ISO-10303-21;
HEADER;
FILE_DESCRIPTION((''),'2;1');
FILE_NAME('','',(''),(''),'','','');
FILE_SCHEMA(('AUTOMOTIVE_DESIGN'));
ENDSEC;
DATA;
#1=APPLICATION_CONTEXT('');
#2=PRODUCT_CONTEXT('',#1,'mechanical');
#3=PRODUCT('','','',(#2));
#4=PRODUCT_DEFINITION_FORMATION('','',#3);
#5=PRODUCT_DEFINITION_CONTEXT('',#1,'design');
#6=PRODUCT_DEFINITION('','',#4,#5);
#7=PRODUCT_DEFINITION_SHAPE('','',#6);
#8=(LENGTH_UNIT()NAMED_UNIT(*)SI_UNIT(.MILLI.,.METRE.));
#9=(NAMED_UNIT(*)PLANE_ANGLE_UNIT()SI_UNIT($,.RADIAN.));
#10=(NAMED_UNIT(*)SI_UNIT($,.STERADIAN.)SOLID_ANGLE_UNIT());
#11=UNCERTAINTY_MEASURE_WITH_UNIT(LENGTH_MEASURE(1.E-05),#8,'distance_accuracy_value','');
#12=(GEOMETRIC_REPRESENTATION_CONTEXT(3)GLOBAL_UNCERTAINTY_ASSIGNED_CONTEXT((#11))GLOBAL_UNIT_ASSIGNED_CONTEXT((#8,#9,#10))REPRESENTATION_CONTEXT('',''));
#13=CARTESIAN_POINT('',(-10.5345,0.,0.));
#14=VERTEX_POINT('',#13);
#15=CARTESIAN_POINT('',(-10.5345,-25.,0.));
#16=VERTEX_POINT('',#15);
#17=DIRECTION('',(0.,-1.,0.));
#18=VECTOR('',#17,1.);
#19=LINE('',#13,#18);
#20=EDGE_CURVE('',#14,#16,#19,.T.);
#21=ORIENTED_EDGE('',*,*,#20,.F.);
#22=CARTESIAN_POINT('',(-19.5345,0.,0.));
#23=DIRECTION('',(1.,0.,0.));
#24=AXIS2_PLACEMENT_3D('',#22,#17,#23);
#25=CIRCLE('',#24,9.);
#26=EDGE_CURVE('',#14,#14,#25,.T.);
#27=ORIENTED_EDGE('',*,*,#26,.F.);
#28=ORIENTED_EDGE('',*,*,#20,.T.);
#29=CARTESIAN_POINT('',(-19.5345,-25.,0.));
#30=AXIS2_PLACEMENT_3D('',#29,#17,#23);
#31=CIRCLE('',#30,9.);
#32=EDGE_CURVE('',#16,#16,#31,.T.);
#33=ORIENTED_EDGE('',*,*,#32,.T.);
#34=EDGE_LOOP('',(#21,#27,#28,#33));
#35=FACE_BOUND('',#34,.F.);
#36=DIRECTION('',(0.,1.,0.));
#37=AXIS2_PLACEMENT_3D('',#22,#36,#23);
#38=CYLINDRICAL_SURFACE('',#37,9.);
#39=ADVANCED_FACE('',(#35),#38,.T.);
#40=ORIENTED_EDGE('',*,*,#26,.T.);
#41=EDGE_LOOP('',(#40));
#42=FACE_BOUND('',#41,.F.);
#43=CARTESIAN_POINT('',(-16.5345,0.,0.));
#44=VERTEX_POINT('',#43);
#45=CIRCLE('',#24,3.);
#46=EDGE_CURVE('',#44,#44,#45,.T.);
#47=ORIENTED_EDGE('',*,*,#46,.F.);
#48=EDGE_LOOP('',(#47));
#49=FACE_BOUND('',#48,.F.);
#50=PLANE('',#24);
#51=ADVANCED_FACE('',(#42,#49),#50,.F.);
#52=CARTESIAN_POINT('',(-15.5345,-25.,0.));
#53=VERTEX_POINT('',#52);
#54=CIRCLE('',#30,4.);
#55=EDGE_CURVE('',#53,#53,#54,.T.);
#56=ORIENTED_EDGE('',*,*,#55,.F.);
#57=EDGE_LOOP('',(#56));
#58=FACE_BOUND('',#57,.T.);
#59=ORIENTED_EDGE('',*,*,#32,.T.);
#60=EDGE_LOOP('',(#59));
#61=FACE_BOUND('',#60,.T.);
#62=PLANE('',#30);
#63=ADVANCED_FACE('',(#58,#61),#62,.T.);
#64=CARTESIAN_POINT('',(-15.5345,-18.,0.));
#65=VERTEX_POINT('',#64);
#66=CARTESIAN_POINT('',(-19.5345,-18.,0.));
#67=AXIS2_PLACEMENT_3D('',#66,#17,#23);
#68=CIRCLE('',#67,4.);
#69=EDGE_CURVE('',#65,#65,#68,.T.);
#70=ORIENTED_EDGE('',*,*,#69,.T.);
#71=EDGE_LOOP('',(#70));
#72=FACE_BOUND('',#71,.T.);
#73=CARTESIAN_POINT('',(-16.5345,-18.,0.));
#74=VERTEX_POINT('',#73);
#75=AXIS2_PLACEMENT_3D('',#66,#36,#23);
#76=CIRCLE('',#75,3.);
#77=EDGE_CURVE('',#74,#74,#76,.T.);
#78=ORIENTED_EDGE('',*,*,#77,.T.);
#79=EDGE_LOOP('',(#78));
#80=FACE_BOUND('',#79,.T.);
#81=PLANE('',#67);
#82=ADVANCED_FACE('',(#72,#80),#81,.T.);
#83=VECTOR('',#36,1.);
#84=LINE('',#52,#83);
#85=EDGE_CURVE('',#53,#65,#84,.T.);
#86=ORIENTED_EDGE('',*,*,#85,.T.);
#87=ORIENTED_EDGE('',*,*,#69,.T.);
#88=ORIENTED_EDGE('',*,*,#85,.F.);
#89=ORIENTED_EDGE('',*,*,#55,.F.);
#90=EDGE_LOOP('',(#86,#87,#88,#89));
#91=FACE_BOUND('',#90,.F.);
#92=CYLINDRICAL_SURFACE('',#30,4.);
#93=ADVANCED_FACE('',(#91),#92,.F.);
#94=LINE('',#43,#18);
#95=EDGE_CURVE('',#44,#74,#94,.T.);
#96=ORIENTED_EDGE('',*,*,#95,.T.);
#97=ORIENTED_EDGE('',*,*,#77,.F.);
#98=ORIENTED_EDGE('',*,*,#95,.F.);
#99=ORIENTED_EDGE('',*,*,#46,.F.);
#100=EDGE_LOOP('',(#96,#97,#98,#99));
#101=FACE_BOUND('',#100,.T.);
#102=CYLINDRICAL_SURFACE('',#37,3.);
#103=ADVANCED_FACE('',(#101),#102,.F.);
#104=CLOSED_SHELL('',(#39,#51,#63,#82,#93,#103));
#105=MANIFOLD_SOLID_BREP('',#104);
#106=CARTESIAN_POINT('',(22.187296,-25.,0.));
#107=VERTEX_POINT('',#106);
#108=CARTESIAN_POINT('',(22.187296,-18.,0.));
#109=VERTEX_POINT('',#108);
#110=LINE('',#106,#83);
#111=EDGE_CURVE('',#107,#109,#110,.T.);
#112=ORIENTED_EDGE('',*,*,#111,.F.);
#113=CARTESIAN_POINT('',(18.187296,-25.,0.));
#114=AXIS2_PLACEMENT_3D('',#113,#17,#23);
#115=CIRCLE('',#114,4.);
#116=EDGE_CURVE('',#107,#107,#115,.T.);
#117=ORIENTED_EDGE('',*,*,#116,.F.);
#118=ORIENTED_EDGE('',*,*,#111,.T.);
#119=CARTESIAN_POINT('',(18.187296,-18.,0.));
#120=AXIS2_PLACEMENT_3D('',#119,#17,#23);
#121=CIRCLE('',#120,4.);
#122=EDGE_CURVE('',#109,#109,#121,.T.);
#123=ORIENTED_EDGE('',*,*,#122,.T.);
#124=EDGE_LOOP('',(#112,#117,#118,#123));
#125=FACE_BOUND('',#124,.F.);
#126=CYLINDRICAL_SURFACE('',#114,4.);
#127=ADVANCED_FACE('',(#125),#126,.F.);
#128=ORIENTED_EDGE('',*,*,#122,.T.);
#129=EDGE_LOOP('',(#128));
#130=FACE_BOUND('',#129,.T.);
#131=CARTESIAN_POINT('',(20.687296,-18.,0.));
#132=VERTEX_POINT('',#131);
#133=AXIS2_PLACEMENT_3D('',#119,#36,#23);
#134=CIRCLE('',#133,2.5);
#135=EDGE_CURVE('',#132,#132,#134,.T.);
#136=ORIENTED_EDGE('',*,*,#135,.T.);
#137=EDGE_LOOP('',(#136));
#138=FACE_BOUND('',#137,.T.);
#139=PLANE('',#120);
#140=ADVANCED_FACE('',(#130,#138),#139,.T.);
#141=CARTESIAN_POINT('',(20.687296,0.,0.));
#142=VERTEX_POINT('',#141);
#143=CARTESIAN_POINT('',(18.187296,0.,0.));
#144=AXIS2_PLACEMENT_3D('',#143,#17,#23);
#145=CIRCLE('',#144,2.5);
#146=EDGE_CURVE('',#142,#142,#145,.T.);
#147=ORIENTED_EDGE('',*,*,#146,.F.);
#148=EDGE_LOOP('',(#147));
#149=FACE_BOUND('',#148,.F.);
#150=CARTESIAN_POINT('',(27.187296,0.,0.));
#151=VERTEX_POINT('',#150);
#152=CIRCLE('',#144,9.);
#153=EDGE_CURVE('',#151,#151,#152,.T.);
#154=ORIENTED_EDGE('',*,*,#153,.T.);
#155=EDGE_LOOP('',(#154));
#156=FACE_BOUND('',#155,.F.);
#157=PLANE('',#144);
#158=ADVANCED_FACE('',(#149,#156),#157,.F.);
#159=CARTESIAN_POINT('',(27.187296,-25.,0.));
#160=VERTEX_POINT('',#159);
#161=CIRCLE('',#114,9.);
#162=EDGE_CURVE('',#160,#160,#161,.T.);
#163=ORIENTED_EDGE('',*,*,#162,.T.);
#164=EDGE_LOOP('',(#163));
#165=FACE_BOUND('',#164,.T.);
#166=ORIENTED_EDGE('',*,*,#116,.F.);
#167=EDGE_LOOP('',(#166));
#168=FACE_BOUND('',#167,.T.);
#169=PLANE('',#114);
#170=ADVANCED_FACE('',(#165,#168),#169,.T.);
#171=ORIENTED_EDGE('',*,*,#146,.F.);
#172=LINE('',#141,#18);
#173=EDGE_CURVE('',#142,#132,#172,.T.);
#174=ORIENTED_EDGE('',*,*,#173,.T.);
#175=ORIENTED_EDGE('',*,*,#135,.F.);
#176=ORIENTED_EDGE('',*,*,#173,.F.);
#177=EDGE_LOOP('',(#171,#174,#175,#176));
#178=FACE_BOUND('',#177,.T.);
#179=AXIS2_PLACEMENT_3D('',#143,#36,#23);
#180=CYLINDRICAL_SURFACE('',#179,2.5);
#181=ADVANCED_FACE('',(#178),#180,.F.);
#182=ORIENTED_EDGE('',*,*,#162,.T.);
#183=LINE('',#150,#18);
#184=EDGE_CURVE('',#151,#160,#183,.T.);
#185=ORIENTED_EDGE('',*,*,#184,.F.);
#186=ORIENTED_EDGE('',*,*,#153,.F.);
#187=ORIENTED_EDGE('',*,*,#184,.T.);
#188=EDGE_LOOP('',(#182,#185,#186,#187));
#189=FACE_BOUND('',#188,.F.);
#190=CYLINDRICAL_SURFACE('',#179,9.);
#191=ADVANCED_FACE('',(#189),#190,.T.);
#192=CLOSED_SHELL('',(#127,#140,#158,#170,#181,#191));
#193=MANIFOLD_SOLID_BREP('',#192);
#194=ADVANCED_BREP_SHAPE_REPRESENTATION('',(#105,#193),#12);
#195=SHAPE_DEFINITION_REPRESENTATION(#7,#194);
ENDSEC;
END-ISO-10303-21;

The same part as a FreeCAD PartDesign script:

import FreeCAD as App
import Part
import Sketcher
from FreeCAD import Vector

doc = App.newDocument("Part")
body = doc.addObject("PartDesign::Body", "Body")
body.AllowCompound = True

# Sketch on XZ plane
sketch1 = body.newObject("Sketcher::SketchObject", "Sketch")
sketch1.AttachmentSupport = (doc.getObject("XZ_Plane"), [""])
sketch1.MapMode = "FlatFace"
sketch1.addGeometry([
    Part.Circle(Vector(-19.5, 0, 0), Vector(0, 0, 1), 9),
    Part.Circle(Vector(-19.5, 0, 0), Vector(0, 0, 1), 3),
    Part.Circle(Vector(18.2, 0, 0), Vector(0, 0, 1), 9),
    Part.Circle(Vector(18.2, 0, 0), Vector(0, 0, 1), 2.5),
], False)
sketch1.addConstraint([
    Sketcher.Constraint("Coincident", 1, 3, 0, 3),
    Sketcher.Constraint("Coincident", 3, 3, 2, 3),
    Sketcher.Constraint("Equal", 0, 2),
    Sketcher.Constraint("PointOnObject", 0, 3, -1),
    Sketcher.Constraint("PointOnObject", 2, 3, -1),
    Sketcher.Constraint("Diameter", 0, 18.0),
    Sketcher.Constraint("Diameter", 1, 6.0),
    Sketcher.Constraint("Diameter", 3, 5.0),
    Sketcher.Constraint("DistanceX", 0, 3, -1, 1, 19.5345),
    Sketcher.Constraint("DistanceX", -1, 1, 2, 3, 18.187296),
])
pad1 = body.newObject("PartDesign::Pad", "Pad")
pad1.Profile = sketch1
pad1.Length = 25

# Sketch on XZ plane
sketch2 = body.newObject("Sketcher::SketchObject", "Sketch001")
sketch2.AttachmentSupport = (doc.getObject("XZ_Plane"), [""])
sketch2.MapMode = "FlatFace"
sketch2.AttachmentOffset = App.Placement(Vector(0, 0, 25), App.Rotation())
sketch2.addGeometry(Part.Circle(Vector(-19.5, 0, 0), Vector(0, 0, 1), 4), False)
sketch2.addConstraint([
    Sketcher.Constraint("PointOnObject", 0, 3, -1),
    Sketcher.Constraint("Diameter", 0, 8.0),
    Sketcher.Constraint("DistanceX", 0, 3, -1, 1, 19.5345),
])
pocket1 = body.newObject("PartDesign::Pocket", "Pocket")
pocket1.Profile = sketch2
pocket1.Length = 7

# Sketch on XZ plane
sketch3 = body.newObject("Sketcher::SketchObject", "Sketch002")
sketch3.AttachmentSupport = (doc.getObject("XZ_Plane"), [""])
sketch3.MapMode = "FlatFace"
sketch3.AttachmentOffset = App.Placement(Vector(0, 0, 25), App.Rotation())
sketch3.addGeometry(Part.Circle(Vector(18.2, 0, 0), Vector(0, 0, 1), 4), False)
sketch3.addConstraint([
    Sketcher.Constraint("PointOnObject", 0, 3, -1),
    Sketcher.Constraint("Diameter", 0, 8.0),
    Sketcher.Constraint("DistanceX", -1, 1, 0, 3, 18.187296),
])
pocket2 = body.newObject("PartDesign::Pocket", "Pocket001")
pocket2.Profile = sketch3
pocket2.Length = 7

doc.recompute()
